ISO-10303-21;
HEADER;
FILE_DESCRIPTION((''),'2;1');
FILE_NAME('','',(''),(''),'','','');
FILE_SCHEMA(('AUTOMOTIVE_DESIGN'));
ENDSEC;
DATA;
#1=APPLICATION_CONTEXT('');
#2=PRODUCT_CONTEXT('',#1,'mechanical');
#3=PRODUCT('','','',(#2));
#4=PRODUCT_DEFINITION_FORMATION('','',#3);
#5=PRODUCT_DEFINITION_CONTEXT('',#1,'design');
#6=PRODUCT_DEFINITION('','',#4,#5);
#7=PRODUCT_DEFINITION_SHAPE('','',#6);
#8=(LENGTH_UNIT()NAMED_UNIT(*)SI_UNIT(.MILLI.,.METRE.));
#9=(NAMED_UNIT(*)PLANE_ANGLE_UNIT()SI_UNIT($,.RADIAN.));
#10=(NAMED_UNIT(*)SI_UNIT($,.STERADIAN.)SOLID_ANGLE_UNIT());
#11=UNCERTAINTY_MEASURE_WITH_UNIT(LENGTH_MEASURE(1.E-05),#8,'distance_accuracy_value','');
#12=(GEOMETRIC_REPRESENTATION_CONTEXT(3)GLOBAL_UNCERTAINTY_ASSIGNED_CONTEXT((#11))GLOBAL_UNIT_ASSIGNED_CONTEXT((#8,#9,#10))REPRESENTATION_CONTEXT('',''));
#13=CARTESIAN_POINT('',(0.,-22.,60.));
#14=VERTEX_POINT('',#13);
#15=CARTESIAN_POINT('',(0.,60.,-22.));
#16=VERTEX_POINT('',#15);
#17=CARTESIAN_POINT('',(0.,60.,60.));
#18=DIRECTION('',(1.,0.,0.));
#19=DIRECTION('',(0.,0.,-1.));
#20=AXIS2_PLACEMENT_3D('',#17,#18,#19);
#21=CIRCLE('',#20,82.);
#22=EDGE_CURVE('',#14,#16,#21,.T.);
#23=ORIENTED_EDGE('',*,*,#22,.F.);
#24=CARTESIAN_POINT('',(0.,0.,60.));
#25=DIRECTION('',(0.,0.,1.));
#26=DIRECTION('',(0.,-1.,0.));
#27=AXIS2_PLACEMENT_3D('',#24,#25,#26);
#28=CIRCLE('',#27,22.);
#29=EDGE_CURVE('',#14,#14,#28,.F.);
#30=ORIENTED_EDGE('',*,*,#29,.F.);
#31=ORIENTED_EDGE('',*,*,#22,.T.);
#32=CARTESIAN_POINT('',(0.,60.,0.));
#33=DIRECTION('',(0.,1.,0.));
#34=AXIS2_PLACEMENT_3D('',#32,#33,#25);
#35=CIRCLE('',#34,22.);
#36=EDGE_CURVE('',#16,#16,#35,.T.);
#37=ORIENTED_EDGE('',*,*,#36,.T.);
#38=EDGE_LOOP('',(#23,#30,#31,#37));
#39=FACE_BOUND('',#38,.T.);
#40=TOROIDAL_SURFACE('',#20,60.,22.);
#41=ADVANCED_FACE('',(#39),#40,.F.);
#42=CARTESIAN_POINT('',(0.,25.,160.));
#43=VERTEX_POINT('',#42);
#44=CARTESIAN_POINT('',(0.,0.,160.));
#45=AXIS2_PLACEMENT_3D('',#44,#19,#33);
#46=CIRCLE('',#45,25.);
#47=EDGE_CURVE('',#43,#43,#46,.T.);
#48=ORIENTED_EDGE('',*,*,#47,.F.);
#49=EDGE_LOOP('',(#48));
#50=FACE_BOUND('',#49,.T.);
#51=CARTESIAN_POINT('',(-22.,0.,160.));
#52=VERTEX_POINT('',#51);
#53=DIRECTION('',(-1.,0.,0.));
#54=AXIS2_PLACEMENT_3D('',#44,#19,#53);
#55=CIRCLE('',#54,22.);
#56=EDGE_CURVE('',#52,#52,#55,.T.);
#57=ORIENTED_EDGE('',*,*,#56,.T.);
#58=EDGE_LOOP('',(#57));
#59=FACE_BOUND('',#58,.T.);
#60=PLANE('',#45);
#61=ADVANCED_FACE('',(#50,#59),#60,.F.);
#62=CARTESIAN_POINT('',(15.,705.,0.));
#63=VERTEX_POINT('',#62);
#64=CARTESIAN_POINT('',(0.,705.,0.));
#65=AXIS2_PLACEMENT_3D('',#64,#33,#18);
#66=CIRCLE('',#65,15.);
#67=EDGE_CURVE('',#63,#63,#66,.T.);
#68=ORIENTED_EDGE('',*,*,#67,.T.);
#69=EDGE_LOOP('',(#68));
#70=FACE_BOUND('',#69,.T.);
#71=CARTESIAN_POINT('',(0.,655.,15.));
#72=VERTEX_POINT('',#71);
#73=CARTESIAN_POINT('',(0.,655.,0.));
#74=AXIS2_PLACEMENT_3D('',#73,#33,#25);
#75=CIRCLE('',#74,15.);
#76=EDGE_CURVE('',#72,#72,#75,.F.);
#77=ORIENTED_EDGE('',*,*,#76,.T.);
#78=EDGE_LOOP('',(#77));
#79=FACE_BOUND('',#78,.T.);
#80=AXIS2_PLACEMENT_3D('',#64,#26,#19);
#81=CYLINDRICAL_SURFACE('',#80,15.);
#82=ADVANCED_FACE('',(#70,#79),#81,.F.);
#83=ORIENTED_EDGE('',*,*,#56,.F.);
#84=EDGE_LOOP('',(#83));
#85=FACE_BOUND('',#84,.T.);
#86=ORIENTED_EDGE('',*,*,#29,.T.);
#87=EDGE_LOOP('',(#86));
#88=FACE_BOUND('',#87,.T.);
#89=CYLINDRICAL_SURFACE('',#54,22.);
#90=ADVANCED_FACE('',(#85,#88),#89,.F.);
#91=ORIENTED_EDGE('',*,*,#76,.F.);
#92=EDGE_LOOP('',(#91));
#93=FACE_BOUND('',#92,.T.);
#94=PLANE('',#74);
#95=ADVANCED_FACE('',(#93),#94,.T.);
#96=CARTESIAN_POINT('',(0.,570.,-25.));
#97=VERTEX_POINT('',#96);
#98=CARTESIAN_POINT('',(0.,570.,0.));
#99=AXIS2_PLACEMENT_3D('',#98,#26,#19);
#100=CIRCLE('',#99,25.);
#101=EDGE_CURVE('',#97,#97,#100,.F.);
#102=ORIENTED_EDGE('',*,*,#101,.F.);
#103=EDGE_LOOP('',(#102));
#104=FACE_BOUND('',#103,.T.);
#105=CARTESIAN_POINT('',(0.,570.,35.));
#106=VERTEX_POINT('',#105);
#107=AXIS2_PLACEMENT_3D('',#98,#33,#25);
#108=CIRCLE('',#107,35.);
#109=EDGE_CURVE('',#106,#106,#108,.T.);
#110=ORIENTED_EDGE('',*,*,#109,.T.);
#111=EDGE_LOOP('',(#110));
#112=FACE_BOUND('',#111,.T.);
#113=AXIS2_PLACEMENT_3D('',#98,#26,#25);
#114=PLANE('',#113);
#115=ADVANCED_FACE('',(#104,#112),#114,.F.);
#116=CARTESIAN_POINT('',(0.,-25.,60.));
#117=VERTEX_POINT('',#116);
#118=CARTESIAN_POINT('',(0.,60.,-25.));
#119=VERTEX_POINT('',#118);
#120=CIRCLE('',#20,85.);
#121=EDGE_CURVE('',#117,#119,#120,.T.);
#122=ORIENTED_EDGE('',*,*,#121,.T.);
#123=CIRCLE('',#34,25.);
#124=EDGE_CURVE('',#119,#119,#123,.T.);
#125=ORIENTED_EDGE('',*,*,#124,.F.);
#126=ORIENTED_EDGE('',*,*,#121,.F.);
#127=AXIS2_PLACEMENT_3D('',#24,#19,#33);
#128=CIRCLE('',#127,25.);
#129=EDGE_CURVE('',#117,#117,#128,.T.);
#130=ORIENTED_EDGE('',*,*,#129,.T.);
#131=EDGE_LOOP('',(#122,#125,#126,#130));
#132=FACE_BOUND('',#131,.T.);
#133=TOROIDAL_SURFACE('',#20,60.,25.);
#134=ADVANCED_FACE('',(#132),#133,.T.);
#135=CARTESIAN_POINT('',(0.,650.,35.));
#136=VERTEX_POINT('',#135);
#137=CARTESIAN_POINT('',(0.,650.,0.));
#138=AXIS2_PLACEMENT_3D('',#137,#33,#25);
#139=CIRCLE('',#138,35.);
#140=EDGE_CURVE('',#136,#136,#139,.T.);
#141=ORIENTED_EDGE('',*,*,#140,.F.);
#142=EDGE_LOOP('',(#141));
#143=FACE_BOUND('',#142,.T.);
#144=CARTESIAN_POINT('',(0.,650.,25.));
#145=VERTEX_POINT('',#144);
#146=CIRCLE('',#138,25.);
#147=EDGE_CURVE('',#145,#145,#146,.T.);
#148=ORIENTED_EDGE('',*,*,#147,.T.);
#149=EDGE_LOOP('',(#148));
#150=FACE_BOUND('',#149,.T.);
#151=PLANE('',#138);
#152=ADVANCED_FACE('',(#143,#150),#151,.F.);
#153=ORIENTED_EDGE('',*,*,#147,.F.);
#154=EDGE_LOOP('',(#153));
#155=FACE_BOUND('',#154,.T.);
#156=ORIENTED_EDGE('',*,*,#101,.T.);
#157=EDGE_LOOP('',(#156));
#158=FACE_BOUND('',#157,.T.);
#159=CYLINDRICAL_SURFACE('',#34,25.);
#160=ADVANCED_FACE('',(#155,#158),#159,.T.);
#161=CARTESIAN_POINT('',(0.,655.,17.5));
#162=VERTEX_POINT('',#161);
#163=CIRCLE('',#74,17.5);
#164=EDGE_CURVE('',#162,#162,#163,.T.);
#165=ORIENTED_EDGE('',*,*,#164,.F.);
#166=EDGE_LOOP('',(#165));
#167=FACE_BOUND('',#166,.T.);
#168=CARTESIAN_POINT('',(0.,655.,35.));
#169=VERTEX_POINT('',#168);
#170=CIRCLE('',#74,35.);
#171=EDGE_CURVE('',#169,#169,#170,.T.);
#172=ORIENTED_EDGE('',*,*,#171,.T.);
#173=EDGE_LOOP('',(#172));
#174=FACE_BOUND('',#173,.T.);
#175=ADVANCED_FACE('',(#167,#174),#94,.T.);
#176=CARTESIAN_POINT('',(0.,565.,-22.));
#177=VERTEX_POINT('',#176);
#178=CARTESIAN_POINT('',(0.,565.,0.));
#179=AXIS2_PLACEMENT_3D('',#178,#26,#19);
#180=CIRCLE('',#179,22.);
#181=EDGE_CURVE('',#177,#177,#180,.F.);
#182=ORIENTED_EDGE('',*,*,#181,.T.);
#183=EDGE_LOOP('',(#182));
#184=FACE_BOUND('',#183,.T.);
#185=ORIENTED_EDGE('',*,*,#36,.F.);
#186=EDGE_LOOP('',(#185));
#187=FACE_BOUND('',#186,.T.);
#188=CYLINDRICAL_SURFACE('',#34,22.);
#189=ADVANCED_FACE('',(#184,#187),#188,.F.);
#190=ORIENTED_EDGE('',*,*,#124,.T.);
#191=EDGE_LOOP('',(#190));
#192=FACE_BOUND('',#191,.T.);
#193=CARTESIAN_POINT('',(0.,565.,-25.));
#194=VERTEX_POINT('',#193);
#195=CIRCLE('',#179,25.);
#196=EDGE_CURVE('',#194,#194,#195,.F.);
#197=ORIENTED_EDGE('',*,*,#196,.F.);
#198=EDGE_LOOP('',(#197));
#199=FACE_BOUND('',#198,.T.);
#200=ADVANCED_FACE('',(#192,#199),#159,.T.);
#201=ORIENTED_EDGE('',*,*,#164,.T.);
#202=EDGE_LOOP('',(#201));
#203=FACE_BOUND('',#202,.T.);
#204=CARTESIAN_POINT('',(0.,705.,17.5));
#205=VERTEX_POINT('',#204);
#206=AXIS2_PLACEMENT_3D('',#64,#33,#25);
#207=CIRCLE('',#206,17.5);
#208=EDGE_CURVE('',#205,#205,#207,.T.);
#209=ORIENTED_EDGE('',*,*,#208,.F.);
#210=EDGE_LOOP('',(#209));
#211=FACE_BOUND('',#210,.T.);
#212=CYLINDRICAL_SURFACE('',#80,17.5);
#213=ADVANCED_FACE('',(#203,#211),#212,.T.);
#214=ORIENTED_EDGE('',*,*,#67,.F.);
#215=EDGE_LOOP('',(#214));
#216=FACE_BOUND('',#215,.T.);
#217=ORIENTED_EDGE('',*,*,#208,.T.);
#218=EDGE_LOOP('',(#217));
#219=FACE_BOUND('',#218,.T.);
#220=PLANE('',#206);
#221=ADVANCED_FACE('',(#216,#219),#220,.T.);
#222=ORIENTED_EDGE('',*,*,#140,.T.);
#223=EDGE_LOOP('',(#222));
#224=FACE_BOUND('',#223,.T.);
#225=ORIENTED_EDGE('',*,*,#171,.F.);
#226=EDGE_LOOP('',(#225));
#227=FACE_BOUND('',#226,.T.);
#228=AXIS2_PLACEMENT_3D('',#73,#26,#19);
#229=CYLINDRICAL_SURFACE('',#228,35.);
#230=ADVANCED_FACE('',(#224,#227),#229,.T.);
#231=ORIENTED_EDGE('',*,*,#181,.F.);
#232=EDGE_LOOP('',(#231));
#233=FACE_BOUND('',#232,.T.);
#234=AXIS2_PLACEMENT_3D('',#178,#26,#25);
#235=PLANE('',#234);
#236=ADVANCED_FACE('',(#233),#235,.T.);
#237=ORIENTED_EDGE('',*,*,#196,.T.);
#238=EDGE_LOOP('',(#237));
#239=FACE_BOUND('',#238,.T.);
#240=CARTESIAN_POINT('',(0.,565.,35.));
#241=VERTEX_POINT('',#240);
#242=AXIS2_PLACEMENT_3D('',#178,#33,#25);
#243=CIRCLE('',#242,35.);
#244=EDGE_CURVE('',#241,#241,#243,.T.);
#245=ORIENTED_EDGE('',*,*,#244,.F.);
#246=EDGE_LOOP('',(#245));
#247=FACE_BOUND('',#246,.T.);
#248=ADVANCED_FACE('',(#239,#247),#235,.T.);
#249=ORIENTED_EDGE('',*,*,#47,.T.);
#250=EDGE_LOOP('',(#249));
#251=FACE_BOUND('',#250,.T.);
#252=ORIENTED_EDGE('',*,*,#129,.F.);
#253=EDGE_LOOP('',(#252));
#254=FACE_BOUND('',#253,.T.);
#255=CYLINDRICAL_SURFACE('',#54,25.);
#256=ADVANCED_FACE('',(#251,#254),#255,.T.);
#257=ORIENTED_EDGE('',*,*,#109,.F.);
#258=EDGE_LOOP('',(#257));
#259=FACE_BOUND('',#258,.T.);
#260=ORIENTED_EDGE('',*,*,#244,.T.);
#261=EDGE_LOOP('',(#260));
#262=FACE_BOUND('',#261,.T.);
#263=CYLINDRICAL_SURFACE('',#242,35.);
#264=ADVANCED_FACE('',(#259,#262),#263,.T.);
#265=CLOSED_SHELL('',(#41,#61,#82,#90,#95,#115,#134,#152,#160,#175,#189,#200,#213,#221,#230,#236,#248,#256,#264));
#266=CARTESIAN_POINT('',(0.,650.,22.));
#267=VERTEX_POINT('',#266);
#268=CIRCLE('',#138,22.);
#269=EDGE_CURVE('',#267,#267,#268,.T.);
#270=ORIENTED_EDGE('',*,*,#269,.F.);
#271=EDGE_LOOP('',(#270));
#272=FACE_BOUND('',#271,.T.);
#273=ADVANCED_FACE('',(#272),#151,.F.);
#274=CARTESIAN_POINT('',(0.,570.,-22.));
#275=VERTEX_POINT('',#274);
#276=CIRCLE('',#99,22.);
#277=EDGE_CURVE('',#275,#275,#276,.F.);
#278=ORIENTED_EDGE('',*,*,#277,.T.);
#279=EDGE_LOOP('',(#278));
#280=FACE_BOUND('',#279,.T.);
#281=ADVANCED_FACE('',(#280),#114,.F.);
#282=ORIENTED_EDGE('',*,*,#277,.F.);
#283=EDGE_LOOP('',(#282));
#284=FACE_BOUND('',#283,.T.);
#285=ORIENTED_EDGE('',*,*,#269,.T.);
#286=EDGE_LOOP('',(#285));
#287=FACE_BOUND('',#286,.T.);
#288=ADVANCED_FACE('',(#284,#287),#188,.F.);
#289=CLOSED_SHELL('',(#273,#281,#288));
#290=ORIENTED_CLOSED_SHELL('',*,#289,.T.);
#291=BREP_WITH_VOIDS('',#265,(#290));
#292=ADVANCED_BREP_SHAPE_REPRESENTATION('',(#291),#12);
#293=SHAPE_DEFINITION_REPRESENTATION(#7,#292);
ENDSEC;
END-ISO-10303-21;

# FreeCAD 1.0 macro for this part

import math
import FreeCAD as App
import Part
import Sketcher

V = App.Vector
Q = App.Units.Quantity

doc = App.newDocument("Part")
body = doc.addObject("PartDesign::Body", "Body")

sketch1 = body.newObject("Sketcher::SketchObject", "Sketch")
sketch1.AttachmentSupport = (doc.getObject("XZ_Plane"), [""])
sketch1.MapMode = "FlatFace"
sketch1.AttachmentOffset = App.Placement(V(0, 0, -650), App.Rotation())
sketch1.addGeometry([
    Part.Circle(V(0, 0, 0), V(0, 0, 1), 25),
    Part.Circle(V(0, 0, 0), V(0, 0, 1), 22),
], False)
sketch1.addConstraint([
    Sketcher.Constraint("Coincident", 0, 3, -1, 1),
    Sketcher.Constraint("Coincident", 1, 3, -1, 1),
    Sketcher.Constraint("Diameter", 0, Q("50 mm")),
    Sketcher.Constraint("Diameter", 1, Q("44 mm")),
])

sketch2 = body.newObject("Sketcher::SketchObject", "Sketch001")
sketch2.AttachmentSupport = (doc.getObject("YZ_Plane"), [""])
sketch2.MapMode = "FlatFace"
sketch2.addGeometry([
    Part.LineSegment(V(0, 160, 0), V(0, 60, 0)),
    Part.ArcOfCircle(Part.Circle(V(60, 60, 0), V(0, 0, 1), 60), math.radians(-180), math.radians(-90)),
    Part.LineSegment(V(60, 0, 0), V(650, 0, 0)),
], False)
sketch2.addConstraint([
    Sketcher.Constraint("Tangent", 0, 2, 1, 1),
    Sketcher.Constraint("Tangent", 1, 2, 2, 1),
    Sketcher.Constraint("Vertical", 0),
    Sketcher.Constraint("Horizontal", 2),
    Sketcher.Constraint("PointOnObject", 0, 1, -2),
    Sketcher.Constraint("PointOnObject", 1, 2, -1),
    Sketcher.Constraint("Radius", 1, Q("60 mm")),
    Sketcher.Constraint("DistanceX", 2, 1, 2, 2, Q("590 mm")),
    Sketcher.Constraint("DistanceY", 0, 2, 0, 1, Q("100 mm")),
])
doc.recompute()

additivepipe = body.newObject("PartDesign::AdditivePipe", "AdditivePipe")
additivepipe.Profile = sketch1
additivepipe.Spine = (sketch2, ["Edge1", "Edge2", "Edge3"])

sketch3 = body.newObject("Sketcher::SketchObject", "Sketch002")
sketch3.AttachmentSupport = (doc.getObject("XZ_Plane"), [""])
sketch3.MapMode = "FlatFace"
sketch3.AttachmentOffset = App.Placement(V(0, 0, -650), App.Rotation())
sketch3.addGeometry(Part.Circle(V(0, 0, 0), V(0, 0, 1), 35), False)
sketch3.addConstraint([
    Sketcher.Constraint("Coincident", 0, 3, -1, 1),
    Sketcher.Constraint("Diameter", 0, Q("70 mm")),
])
pad1 = body.newObject("PartDesign::Pad", "Pad")
pad1.Profile = sketch3
pad1.Length = 5
pad1.Reversed = True

sketch4 = body.newObject("Sketcher::SketchObject", "Sketch003")
sketch4.AttachmentSupport = (doc.getObject("XZ_Plane"), [""])
sketch4.MapMode = "FlatFace"
sketch4.AttachmentOffset = App.Placement(V(0, 0, -655), App.Rotation())
sketch4.addGeometry([
    Part.Circle(V(0, 0, 0), V(0, 0, 1), 18),
    Part.Circle(V(0, 0, 0), V(0, 0, 1), 15),
], False)
sketch4.addConstraint([
    Sketcher.Constraint("Coincident", 0, 3, -1, 1),
    Sketcher.Constraint("Coincident", 1, 3, -1, 1),
    Sketcher.Constraint("Diameter", 0, Q("35 mm")),
    Sketcher.Constraint("Diameter", 1, Q("30 mm")),
])
pad2 = body.newObject("PartDesign::Pad", "Pad001")
pad2.Profile = sketch4
pad2.Length = 50
pad2.Reversed = True
doc.recompute()

datumplane = body.newObject("PartDesign::Plane", "DatumPlane")
datumplane.AttachmentSupport = (doc.getObject("XZ_Plane"), [""])
datumplane.MapMode = "FlatFace"
datumplane.AttachmentOffset = App.Placement(V(0, 0, -610), App.Rotation())
mirrored = body.newObject("PartDesign::Mirrored", "Mirrored")
mirrored.Originals = [pad1]
mirrored.MirrorPlane = (datumplane, [""])
body.Tip = mirrored

doc.recompute()
